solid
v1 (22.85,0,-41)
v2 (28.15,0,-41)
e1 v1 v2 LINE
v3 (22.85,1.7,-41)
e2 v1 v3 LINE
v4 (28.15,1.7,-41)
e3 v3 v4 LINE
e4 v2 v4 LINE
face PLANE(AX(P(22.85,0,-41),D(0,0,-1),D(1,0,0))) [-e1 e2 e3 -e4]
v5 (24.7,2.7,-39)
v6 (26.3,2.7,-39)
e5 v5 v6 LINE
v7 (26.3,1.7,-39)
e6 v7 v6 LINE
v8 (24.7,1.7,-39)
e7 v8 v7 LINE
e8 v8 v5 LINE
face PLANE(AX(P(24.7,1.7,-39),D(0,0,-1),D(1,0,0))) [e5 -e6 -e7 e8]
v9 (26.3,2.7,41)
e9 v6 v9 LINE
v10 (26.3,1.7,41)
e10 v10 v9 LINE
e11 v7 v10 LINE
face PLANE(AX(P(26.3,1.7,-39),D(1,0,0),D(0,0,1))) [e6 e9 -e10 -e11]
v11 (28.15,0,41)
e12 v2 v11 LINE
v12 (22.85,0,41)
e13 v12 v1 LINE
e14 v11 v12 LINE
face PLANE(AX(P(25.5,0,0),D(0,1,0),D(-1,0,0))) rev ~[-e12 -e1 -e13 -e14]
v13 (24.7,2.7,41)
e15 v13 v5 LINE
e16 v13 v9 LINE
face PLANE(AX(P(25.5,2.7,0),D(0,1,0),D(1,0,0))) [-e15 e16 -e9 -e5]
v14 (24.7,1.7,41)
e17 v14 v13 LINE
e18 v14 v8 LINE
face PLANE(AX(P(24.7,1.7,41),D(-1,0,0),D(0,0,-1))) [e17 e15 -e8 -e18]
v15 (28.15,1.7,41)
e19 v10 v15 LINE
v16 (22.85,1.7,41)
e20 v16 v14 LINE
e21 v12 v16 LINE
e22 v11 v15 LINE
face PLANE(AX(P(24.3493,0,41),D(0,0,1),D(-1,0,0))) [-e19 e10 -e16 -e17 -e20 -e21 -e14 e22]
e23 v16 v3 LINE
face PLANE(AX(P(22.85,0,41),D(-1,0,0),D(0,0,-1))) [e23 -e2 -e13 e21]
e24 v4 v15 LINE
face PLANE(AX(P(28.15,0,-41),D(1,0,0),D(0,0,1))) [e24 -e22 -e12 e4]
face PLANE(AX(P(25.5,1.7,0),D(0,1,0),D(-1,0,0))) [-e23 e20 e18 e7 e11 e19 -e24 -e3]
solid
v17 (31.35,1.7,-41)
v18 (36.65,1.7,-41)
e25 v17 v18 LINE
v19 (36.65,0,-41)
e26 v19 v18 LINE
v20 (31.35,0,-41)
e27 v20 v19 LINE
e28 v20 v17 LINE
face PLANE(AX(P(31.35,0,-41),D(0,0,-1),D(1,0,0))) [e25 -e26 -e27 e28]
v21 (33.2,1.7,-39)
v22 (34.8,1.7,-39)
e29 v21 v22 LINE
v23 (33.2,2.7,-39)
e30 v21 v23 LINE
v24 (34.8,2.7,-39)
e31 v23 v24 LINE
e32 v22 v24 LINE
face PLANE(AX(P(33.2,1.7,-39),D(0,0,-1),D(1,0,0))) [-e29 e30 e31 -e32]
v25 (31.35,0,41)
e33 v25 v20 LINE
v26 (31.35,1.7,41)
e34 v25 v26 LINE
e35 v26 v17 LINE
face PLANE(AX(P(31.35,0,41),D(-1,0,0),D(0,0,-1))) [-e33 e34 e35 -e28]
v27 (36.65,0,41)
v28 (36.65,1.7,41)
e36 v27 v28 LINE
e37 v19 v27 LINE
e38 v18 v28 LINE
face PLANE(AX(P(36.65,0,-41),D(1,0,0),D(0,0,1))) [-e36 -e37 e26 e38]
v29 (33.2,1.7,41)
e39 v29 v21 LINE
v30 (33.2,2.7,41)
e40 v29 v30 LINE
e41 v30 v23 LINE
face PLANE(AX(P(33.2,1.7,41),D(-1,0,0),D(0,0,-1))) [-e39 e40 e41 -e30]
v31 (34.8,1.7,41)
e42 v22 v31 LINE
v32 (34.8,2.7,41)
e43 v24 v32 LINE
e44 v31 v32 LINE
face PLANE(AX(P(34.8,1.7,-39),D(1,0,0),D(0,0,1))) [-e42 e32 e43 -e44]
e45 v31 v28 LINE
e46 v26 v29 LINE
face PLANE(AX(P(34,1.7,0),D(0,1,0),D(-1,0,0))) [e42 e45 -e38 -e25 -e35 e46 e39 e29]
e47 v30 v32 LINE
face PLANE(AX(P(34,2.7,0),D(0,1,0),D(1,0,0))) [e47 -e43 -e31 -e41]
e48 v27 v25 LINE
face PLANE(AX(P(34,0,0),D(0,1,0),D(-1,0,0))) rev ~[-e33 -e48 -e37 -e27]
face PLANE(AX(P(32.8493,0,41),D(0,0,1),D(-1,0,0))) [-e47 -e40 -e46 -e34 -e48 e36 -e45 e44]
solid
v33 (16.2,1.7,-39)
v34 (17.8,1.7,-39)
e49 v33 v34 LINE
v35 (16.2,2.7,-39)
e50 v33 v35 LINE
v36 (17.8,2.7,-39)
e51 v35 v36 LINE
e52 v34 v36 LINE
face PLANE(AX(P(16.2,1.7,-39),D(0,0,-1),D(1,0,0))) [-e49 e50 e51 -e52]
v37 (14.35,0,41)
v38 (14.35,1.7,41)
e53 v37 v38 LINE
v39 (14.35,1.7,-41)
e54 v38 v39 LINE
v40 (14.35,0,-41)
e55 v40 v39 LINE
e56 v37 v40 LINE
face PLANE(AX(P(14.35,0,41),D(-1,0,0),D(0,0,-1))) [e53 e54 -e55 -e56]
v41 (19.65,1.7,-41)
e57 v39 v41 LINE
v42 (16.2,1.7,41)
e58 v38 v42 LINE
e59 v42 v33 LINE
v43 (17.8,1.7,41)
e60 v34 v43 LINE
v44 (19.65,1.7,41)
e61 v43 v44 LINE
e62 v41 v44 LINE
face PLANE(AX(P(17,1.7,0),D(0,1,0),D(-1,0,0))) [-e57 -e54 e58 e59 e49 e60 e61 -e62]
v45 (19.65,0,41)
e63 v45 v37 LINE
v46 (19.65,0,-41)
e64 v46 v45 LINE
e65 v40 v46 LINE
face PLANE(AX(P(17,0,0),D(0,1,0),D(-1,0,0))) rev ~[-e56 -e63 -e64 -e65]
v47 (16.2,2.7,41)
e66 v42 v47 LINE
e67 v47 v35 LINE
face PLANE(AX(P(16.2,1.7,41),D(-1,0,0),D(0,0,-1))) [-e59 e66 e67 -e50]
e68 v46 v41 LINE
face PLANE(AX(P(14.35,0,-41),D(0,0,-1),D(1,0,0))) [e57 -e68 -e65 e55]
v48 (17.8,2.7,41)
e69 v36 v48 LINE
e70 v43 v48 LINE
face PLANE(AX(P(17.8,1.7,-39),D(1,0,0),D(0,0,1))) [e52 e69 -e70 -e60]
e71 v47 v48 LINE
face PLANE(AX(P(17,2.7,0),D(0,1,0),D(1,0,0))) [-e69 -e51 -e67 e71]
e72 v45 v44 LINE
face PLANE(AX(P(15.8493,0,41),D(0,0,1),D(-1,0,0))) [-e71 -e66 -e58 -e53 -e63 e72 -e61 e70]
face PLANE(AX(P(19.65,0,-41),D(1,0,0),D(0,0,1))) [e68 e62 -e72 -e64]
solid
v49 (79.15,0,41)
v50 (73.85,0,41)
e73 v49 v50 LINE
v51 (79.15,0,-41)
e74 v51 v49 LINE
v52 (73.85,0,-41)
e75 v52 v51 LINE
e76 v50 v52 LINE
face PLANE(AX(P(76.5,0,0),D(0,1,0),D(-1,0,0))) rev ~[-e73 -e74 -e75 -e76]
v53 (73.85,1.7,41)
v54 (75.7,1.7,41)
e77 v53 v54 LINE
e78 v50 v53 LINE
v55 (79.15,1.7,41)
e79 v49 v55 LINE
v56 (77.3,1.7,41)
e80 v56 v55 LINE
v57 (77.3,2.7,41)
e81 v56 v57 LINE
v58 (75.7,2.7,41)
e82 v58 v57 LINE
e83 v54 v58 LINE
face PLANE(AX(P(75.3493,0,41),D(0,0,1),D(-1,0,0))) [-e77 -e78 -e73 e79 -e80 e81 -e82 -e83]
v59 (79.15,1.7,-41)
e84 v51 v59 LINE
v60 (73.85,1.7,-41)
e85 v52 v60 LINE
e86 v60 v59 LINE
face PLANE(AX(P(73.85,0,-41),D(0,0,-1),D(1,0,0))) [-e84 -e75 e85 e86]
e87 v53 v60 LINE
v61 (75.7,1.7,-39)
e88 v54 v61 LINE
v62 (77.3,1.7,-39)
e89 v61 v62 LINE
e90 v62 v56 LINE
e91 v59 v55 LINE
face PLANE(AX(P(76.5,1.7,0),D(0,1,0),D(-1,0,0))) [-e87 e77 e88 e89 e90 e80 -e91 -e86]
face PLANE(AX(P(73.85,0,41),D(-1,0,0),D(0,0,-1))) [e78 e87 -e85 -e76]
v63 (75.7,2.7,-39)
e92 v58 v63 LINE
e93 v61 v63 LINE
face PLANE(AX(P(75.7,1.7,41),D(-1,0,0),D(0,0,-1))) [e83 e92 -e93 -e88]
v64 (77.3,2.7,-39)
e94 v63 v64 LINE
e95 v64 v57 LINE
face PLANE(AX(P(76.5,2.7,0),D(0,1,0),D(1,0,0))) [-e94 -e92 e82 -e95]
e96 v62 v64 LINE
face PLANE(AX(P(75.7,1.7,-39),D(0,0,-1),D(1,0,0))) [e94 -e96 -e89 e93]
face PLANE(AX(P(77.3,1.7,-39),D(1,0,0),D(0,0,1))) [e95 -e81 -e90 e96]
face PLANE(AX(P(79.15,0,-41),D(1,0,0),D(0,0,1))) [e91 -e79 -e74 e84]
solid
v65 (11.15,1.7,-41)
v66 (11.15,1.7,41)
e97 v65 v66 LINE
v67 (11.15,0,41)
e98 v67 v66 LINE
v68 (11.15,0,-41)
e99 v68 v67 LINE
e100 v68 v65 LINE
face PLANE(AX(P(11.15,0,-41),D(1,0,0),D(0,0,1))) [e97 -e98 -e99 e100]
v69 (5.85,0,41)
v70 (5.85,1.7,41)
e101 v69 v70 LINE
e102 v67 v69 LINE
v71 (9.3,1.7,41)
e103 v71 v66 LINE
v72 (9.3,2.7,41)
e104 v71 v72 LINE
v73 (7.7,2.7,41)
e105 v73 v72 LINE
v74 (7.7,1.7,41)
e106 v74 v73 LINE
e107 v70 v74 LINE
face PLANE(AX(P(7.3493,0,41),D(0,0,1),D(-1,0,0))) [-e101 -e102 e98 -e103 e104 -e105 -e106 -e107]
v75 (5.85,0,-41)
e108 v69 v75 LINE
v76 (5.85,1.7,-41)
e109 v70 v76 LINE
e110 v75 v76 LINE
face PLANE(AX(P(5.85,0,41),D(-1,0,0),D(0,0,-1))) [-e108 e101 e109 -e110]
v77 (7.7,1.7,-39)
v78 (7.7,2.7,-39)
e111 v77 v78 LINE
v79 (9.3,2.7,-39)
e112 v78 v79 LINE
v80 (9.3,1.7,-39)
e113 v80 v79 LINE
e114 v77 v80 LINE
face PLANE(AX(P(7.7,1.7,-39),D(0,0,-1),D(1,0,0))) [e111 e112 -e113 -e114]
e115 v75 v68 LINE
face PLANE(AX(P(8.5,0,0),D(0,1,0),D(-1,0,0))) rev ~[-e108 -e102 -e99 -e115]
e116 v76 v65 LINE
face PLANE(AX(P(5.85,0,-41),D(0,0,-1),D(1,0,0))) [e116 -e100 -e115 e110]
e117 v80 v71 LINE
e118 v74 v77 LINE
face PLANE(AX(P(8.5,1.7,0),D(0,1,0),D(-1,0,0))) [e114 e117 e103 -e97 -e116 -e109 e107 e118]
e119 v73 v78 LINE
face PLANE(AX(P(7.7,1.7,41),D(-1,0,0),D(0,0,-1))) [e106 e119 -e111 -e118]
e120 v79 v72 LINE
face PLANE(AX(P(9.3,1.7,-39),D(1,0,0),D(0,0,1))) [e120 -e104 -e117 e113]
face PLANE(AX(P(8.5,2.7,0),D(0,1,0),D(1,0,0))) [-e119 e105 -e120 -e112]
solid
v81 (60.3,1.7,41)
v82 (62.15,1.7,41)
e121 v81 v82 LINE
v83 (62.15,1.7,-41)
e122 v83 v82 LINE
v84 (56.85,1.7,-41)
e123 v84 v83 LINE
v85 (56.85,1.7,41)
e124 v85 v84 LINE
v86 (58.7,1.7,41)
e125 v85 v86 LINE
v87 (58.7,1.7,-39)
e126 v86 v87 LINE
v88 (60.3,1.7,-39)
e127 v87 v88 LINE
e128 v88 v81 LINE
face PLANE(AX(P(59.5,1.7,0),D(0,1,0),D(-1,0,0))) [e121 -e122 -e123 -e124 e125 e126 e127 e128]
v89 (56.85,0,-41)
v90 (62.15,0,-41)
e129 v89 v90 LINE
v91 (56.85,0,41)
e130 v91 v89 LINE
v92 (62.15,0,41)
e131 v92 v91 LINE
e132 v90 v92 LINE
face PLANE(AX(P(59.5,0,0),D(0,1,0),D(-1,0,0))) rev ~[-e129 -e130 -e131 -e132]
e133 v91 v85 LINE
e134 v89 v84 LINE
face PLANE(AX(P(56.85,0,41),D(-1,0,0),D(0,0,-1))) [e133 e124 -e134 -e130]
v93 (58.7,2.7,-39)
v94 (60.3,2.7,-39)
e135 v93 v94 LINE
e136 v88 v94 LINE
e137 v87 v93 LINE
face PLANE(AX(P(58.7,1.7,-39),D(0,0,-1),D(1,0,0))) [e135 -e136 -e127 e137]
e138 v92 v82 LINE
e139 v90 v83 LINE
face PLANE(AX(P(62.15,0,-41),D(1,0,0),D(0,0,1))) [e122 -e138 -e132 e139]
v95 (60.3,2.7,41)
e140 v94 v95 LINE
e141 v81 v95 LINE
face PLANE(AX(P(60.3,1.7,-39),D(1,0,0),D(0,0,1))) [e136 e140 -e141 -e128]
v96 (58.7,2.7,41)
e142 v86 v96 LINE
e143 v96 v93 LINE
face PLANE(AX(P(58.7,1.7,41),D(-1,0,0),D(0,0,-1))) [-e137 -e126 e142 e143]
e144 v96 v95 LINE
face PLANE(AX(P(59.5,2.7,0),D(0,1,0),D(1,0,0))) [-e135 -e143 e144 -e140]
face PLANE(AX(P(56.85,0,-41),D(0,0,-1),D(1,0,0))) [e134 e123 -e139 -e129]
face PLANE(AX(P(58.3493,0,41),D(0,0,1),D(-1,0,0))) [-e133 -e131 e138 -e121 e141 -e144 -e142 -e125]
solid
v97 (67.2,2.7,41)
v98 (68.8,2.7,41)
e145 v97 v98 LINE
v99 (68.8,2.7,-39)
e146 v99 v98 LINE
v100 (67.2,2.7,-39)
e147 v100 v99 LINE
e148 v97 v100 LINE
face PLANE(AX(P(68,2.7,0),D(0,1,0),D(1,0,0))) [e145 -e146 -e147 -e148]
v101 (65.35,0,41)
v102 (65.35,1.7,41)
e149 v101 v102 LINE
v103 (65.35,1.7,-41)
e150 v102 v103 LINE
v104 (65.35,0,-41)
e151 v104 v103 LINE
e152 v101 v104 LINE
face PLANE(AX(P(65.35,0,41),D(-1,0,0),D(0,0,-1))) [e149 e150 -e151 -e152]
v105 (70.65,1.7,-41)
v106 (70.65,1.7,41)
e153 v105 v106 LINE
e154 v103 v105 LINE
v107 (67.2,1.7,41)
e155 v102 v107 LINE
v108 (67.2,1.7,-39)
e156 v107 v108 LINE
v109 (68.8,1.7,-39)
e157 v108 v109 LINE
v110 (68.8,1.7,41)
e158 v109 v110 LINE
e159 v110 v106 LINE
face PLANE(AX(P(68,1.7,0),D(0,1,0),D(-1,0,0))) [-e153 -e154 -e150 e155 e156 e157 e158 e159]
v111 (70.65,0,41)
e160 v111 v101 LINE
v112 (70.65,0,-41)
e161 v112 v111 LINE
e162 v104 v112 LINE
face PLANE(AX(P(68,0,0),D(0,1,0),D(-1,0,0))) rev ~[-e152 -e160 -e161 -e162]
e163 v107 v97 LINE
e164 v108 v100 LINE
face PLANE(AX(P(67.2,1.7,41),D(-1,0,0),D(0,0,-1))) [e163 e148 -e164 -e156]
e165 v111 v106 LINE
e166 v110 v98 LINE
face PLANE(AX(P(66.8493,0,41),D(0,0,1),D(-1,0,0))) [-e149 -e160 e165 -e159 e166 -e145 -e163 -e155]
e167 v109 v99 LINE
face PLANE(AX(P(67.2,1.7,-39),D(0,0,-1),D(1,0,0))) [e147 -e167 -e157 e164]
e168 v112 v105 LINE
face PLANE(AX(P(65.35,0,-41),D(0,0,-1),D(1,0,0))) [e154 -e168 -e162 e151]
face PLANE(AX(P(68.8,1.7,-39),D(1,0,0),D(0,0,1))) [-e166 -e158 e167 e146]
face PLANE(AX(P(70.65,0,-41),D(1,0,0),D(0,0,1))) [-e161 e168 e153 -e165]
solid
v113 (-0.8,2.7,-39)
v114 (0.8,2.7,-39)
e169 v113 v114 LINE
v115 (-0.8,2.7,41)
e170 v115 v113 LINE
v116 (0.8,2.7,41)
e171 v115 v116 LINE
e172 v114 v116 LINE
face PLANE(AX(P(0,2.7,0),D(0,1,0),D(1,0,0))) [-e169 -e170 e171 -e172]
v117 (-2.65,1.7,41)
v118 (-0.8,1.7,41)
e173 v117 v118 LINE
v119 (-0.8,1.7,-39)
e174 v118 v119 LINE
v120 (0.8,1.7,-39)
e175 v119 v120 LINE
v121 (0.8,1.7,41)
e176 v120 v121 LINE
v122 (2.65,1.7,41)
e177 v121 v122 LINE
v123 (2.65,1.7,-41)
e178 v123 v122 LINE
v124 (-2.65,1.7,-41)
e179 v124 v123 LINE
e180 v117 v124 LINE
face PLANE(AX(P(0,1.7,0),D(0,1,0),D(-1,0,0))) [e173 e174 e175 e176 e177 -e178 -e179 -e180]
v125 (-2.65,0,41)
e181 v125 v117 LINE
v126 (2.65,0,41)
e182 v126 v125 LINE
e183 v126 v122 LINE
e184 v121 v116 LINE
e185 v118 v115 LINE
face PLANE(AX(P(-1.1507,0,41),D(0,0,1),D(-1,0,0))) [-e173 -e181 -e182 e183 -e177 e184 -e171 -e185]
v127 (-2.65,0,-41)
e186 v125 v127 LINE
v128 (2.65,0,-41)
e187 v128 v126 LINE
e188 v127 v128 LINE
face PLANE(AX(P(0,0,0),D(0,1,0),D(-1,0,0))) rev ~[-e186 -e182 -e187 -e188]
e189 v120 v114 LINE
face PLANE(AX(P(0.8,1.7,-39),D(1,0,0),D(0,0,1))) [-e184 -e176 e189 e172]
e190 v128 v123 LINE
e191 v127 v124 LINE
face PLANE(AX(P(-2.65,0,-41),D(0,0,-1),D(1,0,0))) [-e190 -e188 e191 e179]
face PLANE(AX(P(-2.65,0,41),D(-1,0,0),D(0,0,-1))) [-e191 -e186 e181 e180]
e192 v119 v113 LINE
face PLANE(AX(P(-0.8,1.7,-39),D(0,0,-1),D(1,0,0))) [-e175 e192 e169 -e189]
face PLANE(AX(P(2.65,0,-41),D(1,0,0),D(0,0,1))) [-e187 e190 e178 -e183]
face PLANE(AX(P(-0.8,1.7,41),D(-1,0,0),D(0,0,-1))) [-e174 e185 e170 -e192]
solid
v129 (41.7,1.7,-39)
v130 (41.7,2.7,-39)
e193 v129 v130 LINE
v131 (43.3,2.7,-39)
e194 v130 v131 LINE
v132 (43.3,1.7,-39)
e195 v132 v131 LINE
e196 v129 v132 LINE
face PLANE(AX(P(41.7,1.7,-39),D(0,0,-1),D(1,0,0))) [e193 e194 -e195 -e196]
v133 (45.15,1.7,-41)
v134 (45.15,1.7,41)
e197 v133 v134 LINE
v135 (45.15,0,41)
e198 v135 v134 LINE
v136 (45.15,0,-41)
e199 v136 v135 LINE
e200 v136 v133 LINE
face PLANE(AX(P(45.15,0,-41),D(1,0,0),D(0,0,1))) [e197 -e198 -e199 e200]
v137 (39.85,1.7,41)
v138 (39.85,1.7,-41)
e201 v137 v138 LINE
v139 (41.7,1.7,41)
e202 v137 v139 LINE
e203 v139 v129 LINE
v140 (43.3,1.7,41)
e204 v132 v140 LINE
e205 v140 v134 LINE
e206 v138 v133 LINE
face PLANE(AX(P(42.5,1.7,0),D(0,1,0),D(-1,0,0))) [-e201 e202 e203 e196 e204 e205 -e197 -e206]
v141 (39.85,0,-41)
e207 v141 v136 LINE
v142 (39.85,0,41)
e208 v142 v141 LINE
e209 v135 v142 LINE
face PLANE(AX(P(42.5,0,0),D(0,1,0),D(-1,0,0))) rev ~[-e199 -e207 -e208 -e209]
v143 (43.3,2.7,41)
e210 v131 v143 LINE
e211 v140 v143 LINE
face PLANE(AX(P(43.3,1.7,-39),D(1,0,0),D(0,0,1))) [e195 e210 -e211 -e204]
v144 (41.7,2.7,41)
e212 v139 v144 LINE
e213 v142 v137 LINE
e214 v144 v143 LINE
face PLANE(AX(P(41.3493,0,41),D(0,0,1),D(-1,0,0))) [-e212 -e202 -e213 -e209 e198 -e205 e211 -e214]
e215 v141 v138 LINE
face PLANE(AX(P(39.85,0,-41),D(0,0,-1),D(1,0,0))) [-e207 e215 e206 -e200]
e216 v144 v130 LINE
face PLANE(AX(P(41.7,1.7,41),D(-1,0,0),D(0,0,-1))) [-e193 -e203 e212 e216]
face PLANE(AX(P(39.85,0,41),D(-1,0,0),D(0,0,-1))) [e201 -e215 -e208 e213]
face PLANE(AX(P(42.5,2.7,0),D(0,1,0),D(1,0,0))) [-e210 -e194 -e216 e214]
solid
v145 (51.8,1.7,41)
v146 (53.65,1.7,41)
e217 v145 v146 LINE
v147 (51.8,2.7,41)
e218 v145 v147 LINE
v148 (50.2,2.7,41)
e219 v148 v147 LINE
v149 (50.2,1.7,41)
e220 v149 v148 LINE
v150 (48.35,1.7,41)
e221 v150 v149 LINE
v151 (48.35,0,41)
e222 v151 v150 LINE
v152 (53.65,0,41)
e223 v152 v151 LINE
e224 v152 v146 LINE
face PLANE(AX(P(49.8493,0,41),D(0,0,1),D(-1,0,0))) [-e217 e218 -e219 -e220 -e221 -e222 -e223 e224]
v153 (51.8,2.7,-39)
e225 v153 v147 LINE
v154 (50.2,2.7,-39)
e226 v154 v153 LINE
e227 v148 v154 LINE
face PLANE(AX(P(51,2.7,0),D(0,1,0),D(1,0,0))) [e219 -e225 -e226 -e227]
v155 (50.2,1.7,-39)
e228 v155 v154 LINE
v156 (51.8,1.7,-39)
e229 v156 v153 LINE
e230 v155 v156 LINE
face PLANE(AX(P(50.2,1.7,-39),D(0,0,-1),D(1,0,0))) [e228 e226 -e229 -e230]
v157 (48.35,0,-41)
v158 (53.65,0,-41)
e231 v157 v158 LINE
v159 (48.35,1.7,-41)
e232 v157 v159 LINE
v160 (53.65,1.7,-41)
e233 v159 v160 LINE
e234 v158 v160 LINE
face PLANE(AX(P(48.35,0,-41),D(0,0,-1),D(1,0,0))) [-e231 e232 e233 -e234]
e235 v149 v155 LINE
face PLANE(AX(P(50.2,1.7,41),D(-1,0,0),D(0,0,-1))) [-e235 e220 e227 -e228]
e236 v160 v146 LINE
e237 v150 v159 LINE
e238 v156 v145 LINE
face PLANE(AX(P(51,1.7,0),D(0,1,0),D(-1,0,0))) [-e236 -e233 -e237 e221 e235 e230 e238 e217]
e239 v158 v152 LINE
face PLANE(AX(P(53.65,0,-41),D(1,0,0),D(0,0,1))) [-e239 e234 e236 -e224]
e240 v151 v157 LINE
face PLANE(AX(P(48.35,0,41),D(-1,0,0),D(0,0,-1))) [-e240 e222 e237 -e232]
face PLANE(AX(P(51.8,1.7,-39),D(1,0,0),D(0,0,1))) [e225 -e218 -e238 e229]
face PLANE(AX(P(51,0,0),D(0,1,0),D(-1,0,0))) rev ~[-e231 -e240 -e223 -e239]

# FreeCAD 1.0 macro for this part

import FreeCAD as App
import Part
import Sketcher
from FreeCAD import Vector
Q = App.Units.Quantity

doc = App.newDocument("Part")
params = doc.addObject("Spreadsheet::Sheet", "Params")
for row, (alias, value) in enumerate([
    ("sketch1_height", "82 mm"),
    ("sketch1_width", "5.3 mm"),
    ("pad1_length", "1.7 mm"),
    ("sketch2_height", "80 mm"),
    ("sketch2_width", "1.6 mm"),
    ("pad2_length", "1 mm"),
    ("linearpattern_pitch", "8.5 mm"),
], start=1):
    params.set(f"A{row}", alias)
    params.set(f"B{row}", "=" + value)
    params.setAlias(f"B{row}", alias)

body = doc.addObject("PartDesign::Body", "Body")
body.AllowCompound = True

# Sketch on XZ plane
sketch1 = doc.addObject("Sketcher::SketchObject", "Sketch")
body.addObject(sketch1)
sketch1.AttachmentSupport = (doc.XZ_Plane, [""])
sketch1.MapMode = "FlatFace"
sketch1.addGeometry([
    Part.LineSegment(Vector(3, -41, 0), Vector(-3, -41, 0)),
    Part.LineSegment(Vector(-3, -41, 0), Vector(-3, 41, 0)),
    Part.LineSegment(Vector(-3, 41, 0), Vector(3, 41, 0)),
    Part.LineSegment(Vector(3, 41, 0), Vector(3, -41, 0)),
], False)
sketch1.addConstraint([
    Sketcher.Constraint("Coincident", 0, 2, 1, 1),
    Sketcher.Constraint("Coincident", 1, 2, 2, 1),
    Sketcher.Constraint("Coincident", 2, 2, 3, 1),
    Sketcher.Constraint("Coincident", 3, 2, 0, 1),
    Sketcher.Constraint("Horizontal", 0),
    Sketcher.Constraint("Vertical", 1),
    Sketcher.Constraint("Horizontal", 2),
    Sketcher.Constraint("Vertical", 3),
    Sketcher.Constraint("Symmetric", 0, 2, 2, 2, -1, 1),
    Sketcher.Constraint("DistanceY", 1, 1, 1, 2, Q("82 mm")),
    Sketcher.Constraint("DistanceX", 0, 2, 0, 1, Q("5.3 mm")),
])
sketch1.setExpression("Constraints[9]", "Params.sketch1_height")
sketch1.setExpression("Constraints[10]", "Params.sketch1_width")
pad1 = doc.addObject("PartDesign::Pad", "Pad")
body.addObject(pad1)
pad1.Profile = sketch1
pad1.setExpression("Length", "Params.pad1_length")
pad1.Reversed = True

# Sketch on XZ plane
sketch2 = doc.addObject("Sketcher::SketchObject", "Sketch001")
body.addObject(sketch2)
sketch2.AttachmentSupport = (doc.XZ_Plane, [""])
sketch2.MapMode = "FlatFace"
sketch2.AttachmentOffset = App.Placement(Vector(0, 0, -1.7), App.Rotation())
sketch2.addGeometry([
    Part.LineSegment(Vector(-0.8, -39, 0), Vector(-0.8, 41, 0)),
    Part.LineSegment(Vector(-0.8, 41, 0), Vector(0.8, 41, 0)),
    Part.LineSegment(Vector(0.8, 41, 0), Vector(0.8, -39, 0)),
    Part.LineSegment(Vector(0.8, -39, 0), Vector(-0.8, -39, 0)),
], False)
sketch2.addConstraint([
    Sketcher.Constraint("Coincident", 0, 2, 1, 1),
    Sketcher.Constraint("Coincident", 1, 2, 2, 1),
    Sketcher.Constraint("Coincident", 2, 2, 3, 1),
    Sketcher.Constraint("Coincident", 3, 2, 0, 1),
    Sketcher.Constraint("Vertical", 0),
    Sketcher.Constraint("Horizontal", 1),
    Sketcher.Constraint("Vertical", 2),
    Sketcher.Constraint("Horizontal", 3),
    Sketcher.Constraint("DistanceY", 0, 1, 0, 2, Q("80 mm")),
    Sketcher.Constraint("DistanceX", 1, 1, 1, 2, Q("1.6 mm")),
    Sketcher.Constraint("DistanceY", -1, 1, 0, 2, Q("41 mm")),
    Sketcher.Constraint("DistanceX", 0, 2, -1, 1, Q("0.8 mm")),
])
sketch2.setExpression("Constraints[8]", "Params.sketch2_height")
sketch2.setExpression("Constraints[9]", "Params.sketch2_width")
pad2 = doc.addObject("PartDesign::Pad", "Pad001")
body.addObject(pad2)
pad2.Profile = sketch2
pad2.setExpression("Length", "Params.pad2_length")
pad2.Reversed = True
doc.recompute()

linearpattern = doc.addObject("PartDesign::LinearPattern", "LinearPattern")
body.addObject(linearpattern)
linearpattern.Originals = [pad1, pad2]
linearpattern.Direction = (doc.X_Axis, [""])
linearpattern.Mode = "offset"
linearpattern.setExpression("Offset", "Params.linearpattern_pitch")
linearpattern.Occurrences = 10
body.Tip = linearpattern

doc.recompute()
